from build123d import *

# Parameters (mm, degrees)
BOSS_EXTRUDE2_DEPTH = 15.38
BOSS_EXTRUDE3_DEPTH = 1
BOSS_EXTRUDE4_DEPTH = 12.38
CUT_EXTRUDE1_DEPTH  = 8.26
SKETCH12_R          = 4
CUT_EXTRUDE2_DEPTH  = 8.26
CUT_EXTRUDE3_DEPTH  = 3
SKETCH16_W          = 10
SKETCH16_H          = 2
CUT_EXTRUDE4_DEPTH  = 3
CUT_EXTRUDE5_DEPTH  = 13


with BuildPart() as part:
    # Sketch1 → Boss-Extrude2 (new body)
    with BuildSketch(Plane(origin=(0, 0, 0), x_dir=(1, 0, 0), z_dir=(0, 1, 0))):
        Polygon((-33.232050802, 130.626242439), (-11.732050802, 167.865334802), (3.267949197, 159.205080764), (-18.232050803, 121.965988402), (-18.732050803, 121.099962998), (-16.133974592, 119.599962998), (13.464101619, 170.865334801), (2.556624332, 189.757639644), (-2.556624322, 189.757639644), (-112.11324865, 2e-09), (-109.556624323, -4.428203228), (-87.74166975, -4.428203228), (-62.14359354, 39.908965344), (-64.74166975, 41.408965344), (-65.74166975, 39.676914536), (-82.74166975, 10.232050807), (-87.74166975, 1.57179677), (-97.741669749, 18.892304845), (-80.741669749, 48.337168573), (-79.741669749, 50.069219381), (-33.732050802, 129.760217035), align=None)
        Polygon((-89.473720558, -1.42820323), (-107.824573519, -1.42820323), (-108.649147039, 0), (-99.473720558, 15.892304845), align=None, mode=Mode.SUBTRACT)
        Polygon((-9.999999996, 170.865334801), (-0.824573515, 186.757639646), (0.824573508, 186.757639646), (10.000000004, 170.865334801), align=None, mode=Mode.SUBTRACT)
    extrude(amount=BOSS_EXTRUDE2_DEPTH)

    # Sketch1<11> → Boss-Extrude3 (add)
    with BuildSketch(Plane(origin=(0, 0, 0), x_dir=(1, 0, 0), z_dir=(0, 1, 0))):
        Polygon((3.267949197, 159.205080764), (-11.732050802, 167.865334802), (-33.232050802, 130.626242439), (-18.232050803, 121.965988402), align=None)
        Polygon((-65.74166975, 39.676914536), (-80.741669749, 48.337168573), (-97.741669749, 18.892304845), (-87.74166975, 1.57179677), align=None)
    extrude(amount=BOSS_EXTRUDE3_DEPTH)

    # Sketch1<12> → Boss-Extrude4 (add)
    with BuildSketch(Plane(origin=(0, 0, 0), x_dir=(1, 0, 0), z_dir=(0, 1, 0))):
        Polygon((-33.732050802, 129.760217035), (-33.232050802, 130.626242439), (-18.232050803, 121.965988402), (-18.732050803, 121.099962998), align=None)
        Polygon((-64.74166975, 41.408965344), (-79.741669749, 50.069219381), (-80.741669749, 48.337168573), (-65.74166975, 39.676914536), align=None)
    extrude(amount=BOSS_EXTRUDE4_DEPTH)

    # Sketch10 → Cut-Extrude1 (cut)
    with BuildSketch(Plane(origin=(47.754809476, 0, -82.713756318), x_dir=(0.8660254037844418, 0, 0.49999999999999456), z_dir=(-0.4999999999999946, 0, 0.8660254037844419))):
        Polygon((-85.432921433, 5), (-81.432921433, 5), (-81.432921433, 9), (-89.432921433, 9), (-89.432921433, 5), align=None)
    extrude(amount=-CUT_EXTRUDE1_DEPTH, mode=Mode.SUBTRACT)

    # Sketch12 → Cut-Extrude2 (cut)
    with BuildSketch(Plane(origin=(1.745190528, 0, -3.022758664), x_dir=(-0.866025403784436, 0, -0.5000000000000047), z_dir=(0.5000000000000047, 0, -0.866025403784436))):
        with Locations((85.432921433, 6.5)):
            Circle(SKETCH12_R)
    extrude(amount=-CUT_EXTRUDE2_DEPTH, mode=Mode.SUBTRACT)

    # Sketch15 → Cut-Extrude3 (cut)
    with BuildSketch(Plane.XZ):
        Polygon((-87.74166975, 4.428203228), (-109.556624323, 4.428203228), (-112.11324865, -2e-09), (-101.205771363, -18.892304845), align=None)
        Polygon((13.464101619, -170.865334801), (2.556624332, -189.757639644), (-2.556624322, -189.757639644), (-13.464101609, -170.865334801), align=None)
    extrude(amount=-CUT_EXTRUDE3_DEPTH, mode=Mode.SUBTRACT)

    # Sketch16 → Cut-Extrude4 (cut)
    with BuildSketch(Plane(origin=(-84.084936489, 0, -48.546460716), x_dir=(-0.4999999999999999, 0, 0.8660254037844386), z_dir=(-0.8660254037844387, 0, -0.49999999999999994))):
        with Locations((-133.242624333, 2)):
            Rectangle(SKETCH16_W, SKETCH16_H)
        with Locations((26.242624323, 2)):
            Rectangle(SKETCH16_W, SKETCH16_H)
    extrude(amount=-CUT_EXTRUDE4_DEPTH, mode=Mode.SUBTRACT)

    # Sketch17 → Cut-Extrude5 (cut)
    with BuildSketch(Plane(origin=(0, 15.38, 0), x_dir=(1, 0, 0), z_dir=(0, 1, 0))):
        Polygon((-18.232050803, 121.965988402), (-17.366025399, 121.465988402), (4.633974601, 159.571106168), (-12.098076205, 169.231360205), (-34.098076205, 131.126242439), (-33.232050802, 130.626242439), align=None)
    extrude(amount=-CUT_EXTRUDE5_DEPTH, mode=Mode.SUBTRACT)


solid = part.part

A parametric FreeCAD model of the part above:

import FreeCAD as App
import Part
import Sketcher

V = App.Vector
Q = App.Units.Quantity


def add_polygon(sketch, points):
    """Adds a closed chain of lines whose ends are joined by coincident constraints."""
    first, n = sketch.GeometryCount, len(points)
    for a, b in zip(points, points[1:] + points[:1]):
        sketch.addGeometry(Part.LineSegment(App.Vector(*a, 0), App.Vector(*b, 0)), False)
    for i in range(n):
        sketch.addConstraint(Sketcher.Constraint("Coincident", first + i, 2, first + (i + 1) % n, 1))

doc = App.newDocument("Part")
body = doc.addObject("PartDesign::Body", "Body")

# Sketch on XZ plane
sketch1 = doc.addObject("Sketcher::SketchObject", "Sketch")
body.addObject(sketch1)
sketch1.AttachmentSupport = (doc.XZ_Plane, [""])
sketch1.MapMode = "FlatFace"
add_polygon(sketch1, [(-33.2, -130.6), (-11.7, -167.9), (3.3, -159.2), (-18.2, -122), (-18.7, -121.1), (-16.1, -119.6), (13.5, -170.9), (2.6, -189.8), (-2.6, -189.8), (-112.1, 0), (-109.6, 4.4), (-87.7, 4.4), (-62.1, -39.9), (-64.7, -41.4), (-65.7, -39.7), (-82.7, -10.2), (-87.7, -1.6), (-97.7, -18.9), (-80.7, -48.3), (-79.7, -50.1), (-33.7, -129.8)])  # lines 0-20
add_polygon(sketch1, [(-99.5, -15.9), (-89.5, 1.4), (-107.8, 1.4), (-108.6, 0)])  # lines 21-24
add_polygon(sketch1, [(10, -170.9), (-10, -170.9), (-0.8, -186.8), (0.8, -186.8)])  # lines 25-28
sketch1.addConstraint([
    Sketcher.Constraint("Horizontal", 7),
    Sketcher.Constraint("Horizontal", 10),
    Sketcher.Constraint("Horizontal", 22),
    Sketcher.Constraint("Horizontal", 25),
    Sketcher.Constraint("Horizontal", 27),
    Sketcher.Constraint("PointOnObject", 8, 2, -1),
    Sketcher.Constraint("PointOnObject", 23, 2, -1),
    Sketcher.Constraint("Perpendicular", 0, 1),
    Sketcher.Constraint("Perpendicular", 1, 2),
    Sketcher.Constraint("Parallel", 2, 3),
    Sketcher.Constraint("Perpendicular", 3, 4),
    Sketcher.Constraint("Perpendicular", 4, 5),
    Sketcher.Constraint("Parallel", 5, 8),
    Sketcher.Constraint("Parallel", 6, 9),
    Sketcher.Constraint("Parallel", 8, 11),
    Sketcher.Constraint("Perpendicular", 11, 12),
    Sketcher.Constraint("Perpendicular", 12, 13),
    Sketcher.Constraint("Parallel", 13, 14),
    Sketcher.Constraint("Parallel", 14, 15),
    Sketcher.Constraint("Parallel", 9, 16),
    Sketcher.Constraint("Parallel", 15, 17),
    Sketcher.Constraint("Parallel", 17, 18),
    Sketcher.Constraint("Parallel", 18, 19),
    Sketcher.Constraint("Parallel", 19, 20),
    Sketcher.Constraint("Parallel", 16, 21),
    Sketcher.Constraint("Parallel", 21, 23),
    Sketcher.Constraint("Parallel", 20, 24),
    Sketcher.Constraint("Parallel", 24, 26),
    Sketcher.Constraint("Parallel", 23, 28),
    Sketcher.Constraint("Horizontal", 5, 2, 25, 2),
    Sketcher.Constraint("Vertical", 10, 2, 15, 2),
    Sketcher.Constraint("Equal", 0, 2),
    Sketcher.Constraint("Equal", 4, 12),
    Sketcher.Constraint("Equal", 14, 17),
    Sketcher.Constraint("Equal", 13, 18),
    Sketcher.Constraint("Equal", 3, 20),
    Sketcher.Constraint("Equal", 16, 21),
    Sketcher.Constraint("Equal", 24, 26),
    Sketcher.Constraint("Equal", 26, 28),
    Sketcher.Constraint("DistanceX", 25, 2, 25, 1, Q("20 mm")),
    Sketcher.Constraint("Angle", 0, Q("-60 deg")),
    Sketcher.Constraint("Distance", 0, Q("43 mm")),
    Sketcher.Constraint("Distance", 3, Q("1 mm")),
    Sketcher.Constraint("Distance", 4, Q("3 mm")),
    Sketcher.Constraint("Distance", 13, Q("2 mm")),
    Sketcher.Constraint("Distance", 14, Q("34 mm")),
    Sketcher.Constraint("Distance", 15, Q("10 mm")),
    Sketcher.Constraint("Distance", 16, Q("20 mm")),
    Sketcher.Constraint("DistanceX", 25, 2, -1, 1, Q("10 mm")),
    Sketcher.Constraint("DistanceX", 0, 2, 1, 2, Q("15 mm")),
    Sketcher.Constraint("DistanceY", 5, 2, 0, 2, Q("3 mm")),
    Sketcher.Constraint("DistanceY", 21, 2, 10, 2, Q("3 mm")),
    Sketcher.Constraint("DistanceY", 7, 2, 26, 2, Q("3 mm")),
    Sketcher.Constraint("DistanceX", 7, 2, 7, 1, Q("5.113249 mm")),
    Sketcher.Constraint("DistanceX", -1, 1, 5, 2, Q("13.464102 mm")),
    Sketcher.Constraint("DistanceX", 8, 2, 23, 2, Q("3.464102 mm")),
    Sketcher.Constraint("Distance", 8, Q("219.113249 mm")),
    Sketcher.Constraint("Distance", 9, Q("5.113249 mm")),
])
pad1 = doc.addObject("PartDesign::Pad", "Pad")
body.addObject(pad1)
pad1.Profile = sketch1
pad1.Length = 15.38
pad1.Reversed = True

# Sketch on XZ plane
sketch2 = doc.addObject("Sketcher::SketchObject", "Sketch001")
body.addObject(sketch2)
sketch2.AttachmentSupport = (doc.XZ_Plane, [""])
sketch2.MapMode = "FlatFace"
add_polygon(sketch2, [(3, -159), (-12, -168), (-33, -131), (-18, -122)])  # lines 0-3
add_polygon(sketch2, [(-66, -40), (-81, -48), (-98, -19), (-88, -2)])  # lines 4-7
sketch2.addConstraint([
    Sketcher.Constraint("Perpendicular", 0, 1),
    Sketcher.Constraint("Perpendicular", 1, 2),
    Sketcher.Constraint("Perpendicular", 2, 3),
    Sketcher.Constraint("Perpendicular", 3, 4),
    Sketcher.Constraint("Perpendicular", 4, 5),
    Sketcher.Constraint("Parallel", 5, 7),
    Sketcher.Constraint("Equal", 2, 4),
    Sketcher.Constraint("Angle", 0, Q("-150 deg")),
    Sketcher.Constraint("Angle", 6, Q("60 deg")),
    Sketcher.Constraint("Distance", 1, Q("43 mm")),
    Sketcher.Constraint("Distance", 5, Q("34 mm")),
    Sketcher.Constraint("Distance", 6, Q("20 mm")),
    Sketcher.Constraint("DistanceX", 0, 2, -1, 1, Q("11.732051 mm")),
    Sketcher.Constraint("DistanceY", 2, 2, -1, 1, Q("121.965988 mm")),
    Sketcher.Constraint("DistanceX", 4, 2, -1, 1, Q("80.74167 mm")),
    Sketcher.Constraint("DistanceY", 4, 2, -1, 1, Q("48.337169 mm")),
])
pad2 = doc.addObject("PartDesign::Pad", "Pad001")
body.addObject(pad2)
pad2.Profile = sketch2
pad2.Length = 1
pad2.Reversed = True

# Sketch on XZ plane
sketch3 = doc.addObject("Sketcher::SketchObject", "Sketch002")
body.addObject(sketch3)
sketch3.AttachmentSupport = (doc.XZ_Plane, [""])
sketch3.MapMode = "FlatFace"
add_polygon(sketch3, [(-33.2, -130.6), (-33.7, -129.8), (-18.7, -121.1), (-18.2, -122)])  # lines 0-3
add_polygon(sketch3, [(-64.7, -41.4), (-79.7, -50.1), (-80.7, -48.3), (-65.7, -39.7)])  # lines 4-7
sketch3.addConstraint([
    Sketcher.Constraint("Perpendicular", 0, 1),
    Sketcher.Constraint("Perpendicular", 1, 2),
    Sketcher.Constraint("Perpendicular", 2, 3),
    Sketcher.Constraint("Parallel", 3, 4),
    Sketcher.Constraint("Perpendicular", 4, 5),
    Sketcher.Constraint("Perpendicular", 5, 6),
    Sketcher.Constraint("Perpendicular", 6, 7),
    Sketcher.Constraint("Equal", 3, 4),
    Sketcher.Constraint("Angle", 0, Q("120 deg")),
    Sketcher.Constraint("Distance", 0, Q("1 mm")),
    Sketcher.Constraint("Distance", 5, Q("2 mm")),
    Sketcher.Constraint("DistanceX", 0, 2, 1, 2, Q("15 mm")),
    Sketcher.Constraint("DistanceX", 0, 2, -1, 1, Q("33.732051 mm")),
    Sketcher.Constraint("DistanceY", 2, 2, -1, 1, Q("121.965988 mm")),
    Sketcher.Constraint("DistanceX", 4, 2, -1, 1, Q("79.74167 mm")),
    Sketcher.Constraint("DistanceY", 4, 2, -1, 1, Q("50.069219 mm")),
])
pad3 = doc.addObject("PartDesign::Pad", "Pad002")
body.addObject(pad3)
pad3.Profile = sketch3
pad3.Length = 12.38
pad3.Reversed = True

# Sketch on an angled plane
sketch4 = doc.addObject("Sketcher::SketchObject", "Sketch003")
body.addObject(sketch4)
sketch4.Placement = App.Placement(V(47.754809, 0, -82.713756), App.Rotation(V(0.866025404, 0, 0.5), V(0, 1, 0), V(-0.5, 0, 0.866025404), "ZXY"))
add_polygon(sketch4, [(-81.4, 5), (-81.4, 9), (-89.4, 9), (-89.4, 5)])  # lines 0-3
sketch4.addConstraint([
    Sketcher.Constraint("Vertical", 0),
    Sketcher.Constraint("Horizontal", 1),
    Sketcher.Constraint("Vertical", 2),
    Sketcher.Constraint("Horizontal", 3),
    Sketcher.Constraint("DistanceX", 1, 2, 1, 1, Q("8 mm")),
    Sketcher.Constraint("DistanceY", 0, 1, 0, 2, Q("4 mm")),
    Sketcher.Constraint("DistanceY", -1, 1, 0, 2, Q("9 mm")),
    Sketcher.Constraint("DistanceX", 0, 2, -1, 1, Q("81.432921 mm")),
])
pocket1 = doc.addObject("PartDesign::Pocket", "Pocket")
body.addObject(pocket1)
pocket1.Profile = sketch4
pocket1.Length = 8.26

# Sketch on an angled plane
sketch5 = doc.addObject("Sketcher::SketchObject", "Sketch004")
body.addObject(sketch5)
sketch5.Placement = App.Placement(V(1.745191, 0, -3.022759), App.Rotation(V(-0.866025404, 0, -0.5), V(0, 1, 0), V(0.5, 0, -0.866025404), "ZXY"))
sketch5.addGeometry(Part.Circle(V(85.4, 6.5, 0), V(0, 0, 1), 4), False)
sketch5.addConstraint([
    Sketcher.Constraint("Diameter", 0, Q("8 mm")),
    Sketcher.Constraint("DistanceY", -1, 1, 0, 3, Q("6.5 mm")),
    Sketcher.Constraint("DistanceX", -1, 1, 0, 3, Q("85.432921 mm")),
])
pocket2 = doc.addObject("PartDesign::Pocket", "Pocket001")
body.addObject(pocket2)
pocket2.Profile = sketch5
pocket2.Length = 8.26

# Sketch on XZ plane
sketch6 = doc.addObject("Sketcher::SketchObject", "Sketch005")
body.addObject(sketch6)
sketch6.AttachmentSupport = (doc.XZ_Plane, [""])
sketch6.MapMode = "FlatFace"
add_polygon(sketch6, [(-88, 4), (-110, 4), (-112, 0), (-101, -19)])  # lines 0-3
add_polygon(sketch6, [(3, -190), (13, -171), (-13, -171), (-3, -190)])  # lines 4-7
sketch6.addConstraint([
    Sketcher.Constraint("Horizontal", 0),
    Sketcher.Constraint("Horizontal", 5),
    Sketcher.Constraint("Horizontal", 7),
    Sketcher.Constraint("PointOnObject", 1, 2, -1),
    Sketcher.Constraint("Parallel", 1, 3),
    Sketcher.Constraint("Parallel", 3, 4),
    Sketcher.Constraint("Parallel", 2, 6),
    Sketcher.Constraint("Equal", 2, 4),
    Sketcher.Constraint("Equal", 4, 6),
    Sketcher.Constraint("Angle", 1, Q("-120 deg")),
    Sketcher.Constraint("DistanceX", 7, 1, 7, 2, Q("5.113249 mm")),
    Sketcher.Constraint("DistanceX", -1, 1, 4, 2, Q("13.464102 mm")),
    Sketcher.Constraint("DistanceX", 5, 2, -1, 1, Q("13.464102 mm")),
    Sketcher.Constraint("DistanceX", 2, 2, 3, 2, Q("13.464102 mm")),
    Sketcher.Constraint("DistanceX", 1, 2, -1, 1, Q("112.113249 mm")),
    Sketcher.Constraint("DistanceY", 6, 2, -1, 1, Q("189.75764 mm")),
])
pocket3 = doc.addObject("PartDesign::Pocket", "Pocket002")
body.addObject(pocket3)
pocket3.Profile = sketch6
pocket3.Length = 3

# Sketch on an angled plane
sketch7 = doc.addObject("Sketcher::SketchObject", "Sketch006")
body.addObject(sketch7)
sketch7.Placement = App.Placement(V(-84.084936, 0, -48.546461), App.Rotation(V(-0.5, 0, 0.866025404), V(0, 1, 0), V(-0.866025404, 0, -0.5), "ZXY"))
add_polygon(sketch7, [(-138.2, 3), (-138.2, 1), (-128.2, 1), (-128.2, 3)])  # lines 0-3
add_polygon(sketch7, [(21.2, 3), (21.2, 1), (31.2, 1), (31.2, 3)])  # lines 4-7
sketch7.addConstraint([
    Sketcher.Constraint("Vertical", 0),
    Sketcher.Constraint("Horizontal", 1),
    Sketcher.Constraint("Vertical", 2),
    Sketcher.Constraint("Horizontal", 3),
    Sketcher.Constraint("Vertical", 4),
    Sketcher.Constraint("Horizontal", 5),
    Sketcher.Constraint("Vertical", 6),
    Sketcher.Constraint("Horizontal", 7),
    Sketcher.Constraint("Horizontal", 1, 2, 4, 2),
    Sketcher.Constraint("Horizontal", 3, 2, 6, 2),
    Sketcher.Constraint("Equal", 3, 5),
    Sketcher.Constraint("DistanceX", 1, 1, 1, 2, Q("10 mm")),
    Sketcher.Constraint("DistanceY", 0, 2, 0, 1, Q("2 mm")),
    Sketcher.Constraint("DistanceY", -1, 1, 0, 2, Q("1 mm")),
    Sketcher.Constraint("DistanceX", 1, 2, 4, 2, Q("149.485249 mm")),
    Sketcher.Constraint("DistanceX", 0, 2, -1, 1, Q("138.242624 mm")),
])
pocket4 = doc.addObject("PartDesign::Pocket", "Pocket003")
body.addObject(pocket4)
pocket4.Profile = sketch7
pocket4.Length = 3

# Sketch on XZ plane
sketch8 = doc.addObject("Sketcher::SketchObject", "Sketch007")
body.addObject(sketch8)
sketch8.AttachmentSupport = (doc.XZ_Plane, [""])
sketch8.MapMode = "FlatFace"
sketch8.AttachmentOffset = App.Placement(V(0, 0, -15.38), App.Rotation())
add_polygon(sketch8, [(-18.2, -122), (-17.4, -121.5), (4.6, -159.6), (-12.1, -169.2), (-34.1, -131.1), (-33.2, -130.6)])  # lines 0-5
sketch8.addConstraint([
    Sketcher.Constraint("Perpendicular", 0, 1),
    Sketcher.Constraint("Perpendicular", 1, 2),
    Sketcher.Constraint("Perpendicular", 2, 3),
    Sketcher.Constraint("Perpendicular", 3, 4),
    Sketcher.Constraint("Parallel", 4, 5),
    Sketcher.Constraint("Equal", 0, 4),
    Sketcher.Constraint("Angle", 0, Q("30 deg")),
    Sketcher.Constraint("Distance", 0, Q("1 mm")),
    Sketcher.Constraint("Distance", 1, Q("44 mm")),
    Sketcher.Constraint("DistanceX", 4, 2, 5, 2, Q("15 mm")),
    Sketcher.Constraint("DistanceY", 0, 2, -1, 1, Q("121.465988 mm")),
    Sketcher.Constraint("DistanceX", 4, 2, -1, 1, Q("33.232051 mm")),
])
pocket5 = doc.addObject("PartDesign::Pocket", "Pocket004")
body.addObject(pocket5)
pocket5.Profile = sketch8
pocket5.Length = 13
pocket5.Reversed = True

doc.recompute()
